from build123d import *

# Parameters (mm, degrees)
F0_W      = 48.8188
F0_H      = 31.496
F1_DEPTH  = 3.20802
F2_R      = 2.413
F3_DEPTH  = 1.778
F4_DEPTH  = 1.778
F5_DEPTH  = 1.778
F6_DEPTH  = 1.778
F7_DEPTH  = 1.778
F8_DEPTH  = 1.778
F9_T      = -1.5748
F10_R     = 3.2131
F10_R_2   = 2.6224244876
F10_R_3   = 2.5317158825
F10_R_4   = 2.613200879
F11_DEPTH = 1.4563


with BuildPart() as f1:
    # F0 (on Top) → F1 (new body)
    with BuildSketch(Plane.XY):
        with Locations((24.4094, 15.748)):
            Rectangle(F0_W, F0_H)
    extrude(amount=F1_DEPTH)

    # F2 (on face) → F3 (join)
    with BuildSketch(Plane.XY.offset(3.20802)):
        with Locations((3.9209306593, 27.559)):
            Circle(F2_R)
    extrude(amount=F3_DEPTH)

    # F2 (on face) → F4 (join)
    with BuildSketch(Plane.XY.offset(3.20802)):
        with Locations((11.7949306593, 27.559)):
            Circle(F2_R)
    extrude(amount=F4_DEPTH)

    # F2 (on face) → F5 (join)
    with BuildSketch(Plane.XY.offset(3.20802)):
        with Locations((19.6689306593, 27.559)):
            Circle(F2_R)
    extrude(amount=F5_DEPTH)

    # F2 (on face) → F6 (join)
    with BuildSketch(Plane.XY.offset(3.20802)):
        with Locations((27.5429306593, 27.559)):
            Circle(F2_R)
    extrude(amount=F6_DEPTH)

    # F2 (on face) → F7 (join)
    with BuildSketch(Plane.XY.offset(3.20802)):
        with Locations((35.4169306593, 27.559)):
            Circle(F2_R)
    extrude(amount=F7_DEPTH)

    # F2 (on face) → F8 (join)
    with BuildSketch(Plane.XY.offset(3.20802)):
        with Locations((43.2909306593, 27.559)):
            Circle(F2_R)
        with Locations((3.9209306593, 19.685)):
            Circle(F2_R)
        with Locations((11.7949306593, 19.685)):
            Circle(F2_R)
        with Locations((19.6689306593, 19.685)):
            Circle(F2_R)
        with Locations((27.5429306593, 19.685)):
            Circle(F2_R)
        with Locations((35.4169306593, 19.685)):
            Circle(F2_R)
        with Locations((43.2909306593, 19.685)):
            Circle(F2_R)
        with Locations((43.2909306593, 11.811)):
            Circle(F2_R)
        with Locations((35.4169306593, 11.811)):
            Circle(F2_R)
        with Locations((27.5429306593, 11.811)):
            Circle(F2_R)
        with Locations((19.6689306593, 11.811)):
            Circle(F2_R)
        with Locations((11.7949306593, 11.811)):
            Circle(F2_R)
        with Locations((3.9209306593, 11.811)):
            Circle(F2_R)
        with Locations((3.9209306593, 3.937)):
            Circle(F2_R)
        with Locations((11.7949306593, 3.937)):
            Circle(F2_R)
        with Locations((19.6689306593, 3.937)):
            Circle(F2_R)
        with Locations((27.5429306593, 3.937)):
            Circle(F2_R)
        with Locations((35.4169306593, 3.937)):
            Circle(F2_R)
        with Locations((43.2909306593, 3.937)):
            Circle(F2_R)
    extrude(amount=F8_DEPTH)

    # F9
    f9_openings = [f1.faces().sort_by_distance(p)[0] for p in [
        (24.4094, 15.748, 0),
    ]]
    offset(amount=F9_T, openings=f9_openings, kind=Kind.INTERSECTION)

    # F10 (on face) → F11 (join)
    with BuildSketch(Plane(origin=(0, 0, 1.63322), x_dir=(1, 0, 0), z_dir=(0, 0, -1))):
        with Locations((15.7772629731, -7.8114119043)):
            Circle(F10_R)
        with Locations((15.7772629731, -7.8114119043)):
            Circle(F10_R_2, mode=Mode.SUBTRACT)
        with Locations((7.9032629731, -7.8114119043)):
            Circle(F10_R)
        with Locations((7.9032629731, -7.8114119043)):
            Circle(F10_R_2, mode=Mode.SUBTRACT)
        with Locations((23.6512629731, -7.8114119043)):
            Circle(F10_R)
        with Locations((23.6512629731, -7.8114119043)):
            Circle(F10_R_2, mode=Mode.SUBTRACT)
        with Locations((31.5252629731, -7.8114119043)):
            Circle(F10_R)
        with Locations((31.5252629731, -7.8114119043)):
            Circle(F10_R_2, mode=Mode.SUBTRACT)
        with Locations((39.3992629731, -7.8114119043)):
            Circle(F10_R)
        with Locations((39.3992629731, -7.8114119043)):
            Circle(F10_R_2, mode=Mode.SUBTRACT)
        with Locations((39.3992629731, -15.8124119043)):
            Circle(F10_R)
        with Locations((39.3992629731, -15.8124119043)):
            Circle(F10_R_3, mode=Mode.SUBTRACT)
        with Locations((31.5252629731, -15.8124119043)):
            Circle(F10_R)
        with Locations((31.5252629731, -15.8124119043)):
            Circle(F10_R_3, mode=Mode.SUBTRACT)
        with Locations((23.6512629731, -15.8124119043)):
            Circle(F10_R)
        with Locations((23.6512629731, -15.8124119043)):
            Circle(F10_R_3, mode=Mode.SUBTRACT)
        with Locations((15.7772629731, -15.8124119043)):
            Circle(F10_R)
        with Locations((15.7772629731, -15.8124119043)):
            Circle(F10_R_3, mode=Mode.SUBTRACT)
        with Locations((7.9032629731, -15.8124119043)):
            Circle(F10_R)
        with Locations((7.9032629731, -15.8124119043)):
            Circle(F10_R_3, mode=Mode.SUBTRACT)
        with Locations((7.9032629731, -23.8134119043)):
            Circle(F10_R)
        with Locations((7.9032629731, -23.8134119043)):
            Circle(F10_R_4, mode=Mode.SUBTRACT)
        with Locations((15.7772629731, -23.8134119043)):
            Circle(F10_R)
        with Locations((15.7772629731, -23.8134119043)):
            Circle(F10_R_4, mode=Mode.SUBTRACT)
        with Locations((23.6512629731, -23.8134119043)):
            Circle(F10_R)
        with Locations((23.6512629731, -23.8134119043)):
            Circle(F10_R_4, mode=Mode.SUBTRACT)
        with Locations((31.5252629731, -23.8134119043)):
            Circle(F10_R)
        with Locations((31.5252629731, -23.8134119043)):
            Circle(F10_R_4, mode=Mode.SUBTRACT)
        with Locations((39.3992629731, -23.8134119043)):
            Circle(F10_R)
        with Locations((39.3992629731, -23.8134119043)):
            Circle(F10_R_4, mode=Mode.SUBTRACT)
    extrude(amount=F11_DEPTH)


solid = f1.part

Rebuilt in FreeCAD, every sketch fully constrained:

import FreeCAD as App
import Part
import Sketcher

V = App.Vector
Q = App.Units.Quantity


def faces_at(feature, points):
    """Names of the faces that lie closest to the given points."""
    faces = feature.Shape.Faces
    near = lambda p: min(range(len(faces)), key=lambda i: faces[i].distToShape(Part.Vertex(*p))[0])
    return sorted({f"Face{near(p) + 1}" for p in points})


def add_polygon(sketch, points):
    """Adds a closed chain of lines whose ends are joined by coincident constraints."""
    first, n = sketch.GeometryCount, len(points)
    for a, b in zip(points, points[1:] + points[:1]):
        sketch.addGeometry(Part.LineSegment(App.Vector(*a, 0), App.Vector(*b, 0)), False)
    for i in range(n):
        sketch.addConstraint(Sketcher.Constraint("Coincident", first + i, 2, first + (i + 1) % n, 1))

doc = App.newDocument("Part")
body = doc.addObject("PartDesign::Body", "Body")

sketch1 = body.newObject("Sketcher::SketchObject", "Sketch")
sketch1.AttachmentSupport = (doc.getObject("XY_Plane"), [""])
sketch1.MapMode = "FlatFace"
add_polygon(sketch1, [(0, 31.496), (0, 0), (48.8188, 0), (48.8188, 31.496)])
sketch1.addConstraint([
    Sketcher.Constraint("Vertical", 0),
    Sketcher.Constraint("Horizontal", 1),
    Sketcher.Constraint("Vertical", 2),
    Sketcher.Constraint("Horizontal", 3),
    Sketcher.Constraint("Coincident", 0, 2, -1, 1),
    Sketcher.Constraint("DistanceY", 0, 2, 0, 1, Q("1.24 in")),
    Sketcher.Constraint("DistanceX", 1, 1, 1, 2, Q("1.922 in")),
])
pad1 = body.newObject("PartDesign::Pad", "Pad")
pad1.Profile = sketch1
pad1.Length = Q("0.1263 in")

sketch2 = body.newObject("Sketcher::SketchObject", "Sketch001")
sketch2.AttachmentSupport = (doc.getObject("XY_Plane"), [""])
sketch2.MapMode = "FlatFace"
sketch2.AttachmentOffset = App.Placement(V(0, 0, 0.1263 * 25.4), App.Rotation())
sketch2.addGeometry(Part.Circle(V(3.920931, 27.559, 0), V(0, 0, 1), 2.413), False)
sketch2.addConstraint([
    Sketcher.Constraint("Diameter", 0, Q("0.19 in")),
    Sketcher.Constraint("DistanceY", -1, 1, 0, 3, Q("1.085 in")),
    Sketcher.Constraint("DistanceX", -1, 1, 0, 3, Q("3.920931 mm")),
])
pad2 = body.newObject("PartDesign::Pad", "Pad001")
pad2.Profile = sketch2
pad2.Length = Q("0.07 in")

sketch3 = body.newObject("Sketcher::SketchObject", "Sketch002")
sketch3.AttachmentSupport = (doc.getObject("XY_Plane"), [""])
sketch3.MapMode = "FlatFace"
sketch3.AttachmentOffset = App.Placement(V(0, 0, 0.1263 * 25.4), App.Rotation())
sketch3.addGeometry(Part.Circle(V(11.794931, 27.559, 0), V(0, 0, 1), 2.413), False)
sketch3.addConstraint([
    Sketcher.Constraint("Diameter", 0, Q("0.19 in")),
    Sketcher.Constraint("DistanceY", -1, 1, 0, 3, Q("1.085 in")),
    Sketcher.Constraint("DistanceX", -1, 1, 0, 3, Q("11.794931 mm")),
])
pad3 = body.newObject("PartDesign::Pad", "Pad002")
pad3.Profile = sketch3
pad3.Length = Q("0.07 in")

sketch4 = body.newObject("Sketcher::SketchObject", "Sketch003")
sketch4.AttachmentSupport = (doc.getObject("XY_Plane"), [""])
sketch4.MapMode = "FlatFace"
sketch4.AttachmentOffset = App.Placement(V(0, 0, 0.1263 * 25.4), App.Rotation())
sketch4.addGeometry(Part.Circle(V(19.668931, 27.559, 0), V(0, 0, 1), 2.413), False)
sketch4.addConstraint([
    Sketcher.Constraint("Diameter", 0, Q("0.19 in")),
    Sketcher.Constraint("DistanceY", -1, 1, 0, 3, Q("1.085 in")),
    Sketcher.Constraint("DistanceX", -1, 1, 0, 3, Q("19.668931 mm")),
])
pad4 = body.newObject("PartDesign::Pad", "Pad003")
pad4.Profile = sketch4
pad4.Length = Q("0.07 in")

sketch5 = body.newObject("Sketcher::SketchObject", "Sketch004")
sketch5.AttachmentSupport = (doc.getObject("XY_Plane"), [""])
sketch5.MapMode = "FlatFace"
sketch5.AttachmentOffset = App.Placement(V(0, 0, 0.1263 * 25.4), App.Rotation())
sketch5.addGeometry(Part.Circle(V(27.542931, 27.559, 0), V(0, 0, 1), 2.413), False)
sketch5.addConstraint([
    Sketcher.Constraint("Diameter", 0, Q("0.19 in")),
    Sketcher.Constraint("DistanceY", -1, 1, 0, 3, Q("1.085 in")),
    Sketcher.Constraint("DistanceX", -1, 1, 0, 3, Q("27.542931 mm")),
])
pad5 = body.newObject("PartDesign::Pad", "Pad004")
pad5.Profile = sketch5
pad5.Length = Q("0.07 in")

sketch6 = body.newObject("Sketcher::SketchObject", "Sketch005")
sketch6.AttachmentSupport = (doc.getObject("XY_Plane"), [""])
sketch6.MapMode = "FlatFace"
sketch6.AttachmentOffset = App.Placement(V(0, 0, 0.1263 * 25.4), App.Rotation())
sketch6.addGeometry(Part.Circle(V(35.416931, 27.559, 0), V(0, 0, 1), 2.413), False)
sketch6.addConstraint([
    Sketcher.Constraint("Diameter", 0, Q("0.19 in")),
    Sketcher.Constraint("DistanceY", -1, 1, 0, 3, Q("1.085 in")),
    Sketcher.Constraint("DistanceX", -1, 1, 0, 3, Q("35.416931 mm")),
])
pad6 = body.newObject("PartDesign::Pad", "Pad005")
pad6.Profile = sketch6
pad6.Length = Q("0.07 in")

sketch7 = body.newObject("Sketcher::SketchObject", "Sketch006")
sketch7.AttachmentSupport = (doc.getObject("XY_Plane"), [""])
sketch7.MapMode = "FlatFace"
sketch7.AttachmentOffset = App.Placement(V(0, 0, 0.1263 * 25.4), App.Rotation())
sketch7.addGeometry([
    Part.Circle(V(43.290931, 27.559, 0), V(0, 0, 1), 2.413),
    Part.Circle(V(3.920931, 19.685, 0), V(0, 0, 1), 2.413),
    Part.Circle(V(11.794931, 19.685, 0), V(0, 0, 1), 2.413),
    Part.Circle(V(19.668931, 19.685, 0), V(0, 0, 1), 2.413),
    Part.Circle(V(27.542931, 19.685, 0), V(0, 0, 1), 2.413),
    Part.Circle(V(35.416931, 19.685, 0), V(0, 0, 1), 2.413),
    Part.Circle(V(43.290931, 19.685, 0), V(0, 0, 1), 2.413),
    Part.Circle(V(43.290931, 11.811, 0), V(0, 0, 1), 2.413),
    Part.Circle(V(35.416931, 11.811, 0), V(0, 0, 1), 2.413),
    Part.Circle(V(27.542931, 11.811, 0), V(0, 0, 1), 2.413),
    Part.Circle(V(19.668931, 11.811, 0), V(0, 0, 1), 2.413),
    Part.Circle(V(11.794931, 11.811, 0), V(0, 0, 1), 2.413),
    Part.Circle(V(3.920931, 11.811, 0), V(0, 0, 1), 2.413),
    Part.Circle(V(3.920931, 3.937, 0), V(0, 0, 1), 2.413),
    Part.Circle(V(11.794931, 3.937, 0), V(0, 0, 1), 2.413),
    Part.Circle(V(19.668931, 3.937, 0), V(0, 0, 1), 2.413),
    Part.Circle(V(27.542931, 3.937, 0), V(0, 0, 1), 2.413),
    Part.Circle(V(35.416931, 3.937, 0), V(0, 0, 1), 2.413),
    Part.Circle(V(43.290931, 3.937, 0), V(0, 0, 1), 2.413),
], False)
sketch7.addConstraint([
    Sketcher.Constraint("Equal", 0, 1),
    Sketcher.Constraint("Equal", 1, 2),
    Sketcher.Constraint("Equal", 2, 3),
    Sketcher.Constraint("Equal", 3, 4),
    Sketcher.Constraint("Equal", 4, 5),
    Sketcher.Constraint("Equal", 5, 6),
    Sketcher.Constraint("Equal", 6, 7),
    Sketcher.Constraint("Equal", 7, 8),
    Sketcher.Constraint("Equal", 8, 9),
    Sketcher.Constraint("Equal", 9, 10),
    Sketcher.Constraint("Equal", 10, 11),
    Sketcher.Constraint("Equal", 11, 12),
    Sketcher.Constraint("Equal", 12, 13),
    Sketcher.Constraint("Equal", 13, 14),
    Sketcher.Constraint("Equal", 14, 15),
    Sketcher.Constraint("Equal", 15, 16),
    Sketcher.Constraint("Equal", 16, 17),
    Sketcher.Constraint("Equal", 17, 18),
    Sketcher.Constraint("Horizontal", 1, 3, 2, 3),
    Sketcher.Constraint("Horizontal", 2, 3, 3, 3),
    Sketcher.Constraint("Horizontal", 3, 3, 4, 3),
    Sketcher.Constraint("Horizontal", 4, 3, 5, 3),
    Sketcher.Constraint("Horizontal", 5, 3, 6, 3),
    Sketcher.Constraint("Horizontal", 7, 3, 8, 3),
    Sketcher.Constraint("Horizontal", 8, 3, 9, 3),
    Sketcher.Constraint("Horizontal", 9, 3, 10, 3),
    Sketcher.Constraint("Horizontal", 10, 3, 11, 3),
    Sketcher.Constraint("Horizontal", 11, 3, 12, 3),
    Sketcher.Constraint("Horizontal", 13, 3, 14, 3),
    Sketcher.Constraint("Horizontal", 14, 3, 15, 3),
    Sketcher.Constraint("Horizontal", 15, 3, 16, 3),
    Sketcher.Constraint("Horizontal", 16, 3, 17, 3),
    Sketcher.Constraint("Horizontal", 17, 3, 18, 3),
    Sketcher.Constraint("Vertical", 0, 3, 6, 3),
    Sketcher.Constraint("Vertical", 6, 3, 7, 3),
    Sketcher.Constraint("Vertical", 5, 3, 8, 3),
    Sketcher.Constraint("Vertical", 4, 3, 9, 3),
    Sketcher.Constraint("Vertical", 3, 3, 10, 3),
    Sketcher.Constraint("Vertical", 2, 3, 11, 3),
    Sketcher.Constraint("Vertical", 1, 3, 12, 3),
    Sketcher.Constraint("Vertical", 12, 3, 13, 3),
    Sketcher.Constraint("Vertical", 11, 3, 14, 3),
    Sketcher.Constraint("Vertical", 10, 3, 15, 3),
    Sketcher.Constraint("Vertical", 9, 3, 16, 3),
    Sketcher.Constraint("Vertical", 8, 3, 17, 3),
    Sketcher.Constraint("Vertical", 7, 3, 18, 3),
    Sketcher.Constraint("Diameter", 0, Q("0.19 in")),
    Sketcher.Constraint("DistanceX", 1, 3, 0, 3, Q("1.55 in")),
    Sketcher.Constraint("DistanceY", 1, 3, 0, 3, Q("0.31 in")),
    Sketcher.Constraint("DistanceX", 1, 3, 2, 3, Q("0.31 in")),
    Sketcher.Constraint("DistanceX", 2, 3, 3, 3, Q("0.31 in")),
    Sketcher.Constraint("DistanceX", 3, 3, 4, 3, Q("0.31 in")),
    Sketcher.Constraint("DistanceX", 4, 3, 5, 3, Q("0.31 in")),
    Sketcher.Constraint("DistanceY", 7, 3, 6, 3, Q("0.31 in")),
    Sketcher.Constraint("DistanceY", 13, 3, 12, 3, Q("0.31 in")),
    Sketcher.Constraint("DistanceY", -1, 1, 0, 3, Q("1.085 in")),
    Sketcher.Constraint("DistanceX", -1, 1, 0, 3, Q("43.290931 mm")),
])
pad7 = body.newObject("PartDesign::Pad", "Pad006")
pad7.Profile = sketch7
pad7.Length = Q("0.07 in")
doc.recompute()

thickness = body.newObject("PartDesign::Thickness", "Thickness")
thickness.Base = (pad7, faces_at(pad7, [(24.409, 15.748, 0)]))
thickness.Value = Q("0.062 in")
thickness.Reversed = True
thickness.Join = "Intersection"

sketch8 = body.newObject("Sketcher::SketchObject", "Sketch007")
sketch8.AttachmentSupport = (doc.getObject("XY_Plane"), [""])
sketch8.MapMode = "FlatFace"
sketch8.AttachmentOffset = App.Placement(V(0, 0, 0.0643 * 25.4), App.Rotation())
sketch8.addGeometry([
    Part.Circle(V(15.777263, 7.811412, 0), V(0, 0, 1), 3.2131),
    Part.Circle(V(15.777263, 7.811412, 0), V(0, 0, 1), 2.622424),
    Part.Circle(V(7.903263, 7.811412, 0), V(0, 0, 1), 3.2131),
    Part.Circle(V(7.903263, 7.811412, 0), V(0, 0, 1), 2.622424),
    Part.Circle(V(23.651263, 7.811412, 0), V(0, 0, 1), 3.2131),
    Part.Circle(V(23.651263, 7.811412, 0), V(0, 0, 1), 2.622424),
    Part.Circle(V(31.525263, 7.811412, 0), V(0, 0, 1), 3.2131),
    Part.Circle(V(31.525263, 7.811412, 0), V(0, 0, 1), 2.622424),
    Part.Circle(V(39.399263, 7.811412, 0), V(0, 0, 1), 3.2131),
    Part.Circle(V(39.399263, 7.811412, 0), V(0, 0, 1), 2.622424),
    Part.Circle(V(39.399263, 15.812412, 0), V(0, 0, 1), 3.2131),
    Part.Circle(V(39.399263, 15.812412, 0), V(0, 0, 1), 2.531716),
    Part.Circle(V(31.525263, 15.812412, 0), V(0, 0, 1), 3.2131),
    Part.Circle(V(31.525263, 15.812412, 0), V(0, 0, 1), 2.531716),
    Part.Circle(V(23.651263, 15.812412, 0), V(0, 0, 1), 3.2131),
    Part.Circle(V(23.651263, 15.812412, 0), V(0, 0, 1), 2.531716),
    Part.Circle(V(15.777263, 15.812412, 0), V(0, 0, 1), 3.2131),
    Part.Circle(V(15.777263, 15.812412, 0), V(0, 0, 1), 2.531716),
    Part.Circle(V(7.903263, 15.812412, 0), V(0, 0, 1), 3.2131),
    Part.Circle(V(7.903263, 15.812412, 0), V(0, 0, 1), 2.531716),
    Part.Circle(V(7.903263, 23.813412, 0), V(0, 0, 1), 3.2131),
    Part.Circle(V(7.903263, 23.813412, 0), V(0, 0, 1), 2.613201),
    Part.Circle(V(15.777263, 23.813412, 0), V(0, 0, 1), 3.2131),
    Part.Circle(V(15.777263, 23.813412, 0), V(0, 0, 1), 2.613201),
    Part.Circle(V(23.651263, 23.813412, 0), V(0, 0, 1), 3.2131),
    Part.Circle(V(23.651263, 23.813412, 0), V(0, 0, 1), 2.613201),
    Part.Circle(V(31.525263, 23.813412, 0), V(0, 0, 1), 3.2131),
    Part.Circle(V(31.525263, 23.813412, 0), V(0, 0, 1), 2.613201),
    Part.Circle(V(39.399263, 23.813412, 0), V(0, 0, 1), 3.2131),
    Part.Circle(V(39.399263, 23.813412, 0), V(0, 0, 1), 2.613201),
], False)
sketch8.addConstraint([
    Sketcher.Constraint("Coincident", 1, 3, 0, 3),
    Sketcher.Constraint("Coincident", 3, 3, 2, 3),
    Sketcher.Constraint("Coincident", 5, 3, 4, 3),
    Sketcher.Constraint("Coincident", 7, 3, 6, 3),
    Sketcher.Constraint("Coincident", 9, 3, 8, 3),
    Sketcher.Constraint("Coincident", 11, 3, 10, 3),
    Sketcher.Constraint("Coincident", 13, 3, 12, 3),
    Sketcher.Constraint("Coincident", 15, 3, 14, 3),
    Sketcher.Constraint("Coincident", 17, 3, 16, 3),
    Sketcher.Constraint("Coincident", 19, 3, 18, 3),
    Sketcher.Constraint("Coincident", 21, 3, 20, 3),
    Sketcher.Constraint("Coincident", 23, 3, 22, 3),
    Sketcher.Constraint("Coincident", 25, 3, 24, 3),
    Sketcher.Constraint("Coincident", 27, 3, 26, 3),
    Sketcher.Constraint("Coincident", 29, 3, 28, 3),
    Sketcher.Constraint("Equal", 0, 2),
    Sketcher.Constraint("Equal", 1, 3),
    Sketcher.Constraint("Equal", 2, 4),
    Sketcher.Constraint("Equal", 3, 5),
    Sketcher.Constraint("Equal", 4, 6),
    Sketcher.Constraint("Equal", 5, 7),
    Sketcher.Constraint("Equal", 6, 8),
    Sketcher.Constraint("Equal", 7, 9),
    Sketcher.Constraint("Equal", 8, 10),
    Sketcher.Constraint("Equal", 10, 12),
    Sketcher.Constraint("Equal", 11, 13),
    Sketcher.Constraint("Equal", 12, 14),
    Sketcher.Constraint("Equal", 13, 15),
    Sketcher.Constraint("Equal", 14, 16),
    Sketcher.Constraint("Equal", 15, 17),
    Sketcher.Constraint("Equal", 16, 18),
    Sketcher.Constraint("Equal", 17, 19),
    Sketcher.Constraint("Equal", 18, 20),
    Sketcher.Constraint("Equal", 20, 22),
    Sketcher.Constraint("Equal", 21, 23),
    Sketcher.Constraint("Equal", 22, 24),
    Sketcher.Constraint("Equal", 23, 25),
    Sketcher.Constraint("Equal", 24, 26),
    Sketcher.Constraint("Equal", 25, 27),
    Sketcher.Constraint("Equal", 26, 28),
    Sketcher.Constraint("Equal", 27, 29),
    Sketcher.Constraint("Horizontal", 1, 3, 2, 3),
    Sketcher.Constraint("Horizontal", 3, 3, 4, 3),
    Sketcher.Constraint("Horizontal", 5, 3, 6, 3),
    Sketcher.Constraint("Horizontal", 7, 3, 8, 3),
    Sketcher.Constraint("Horizontal", 11, 3, 12, 3),
    Sketcher.Constraint("Horizontal", 13, 3, 14, 3),
    Sketcher.Constraint("Horizontal", 15, 3, 16, 3),
    Sketcher.Constraint("Horizontal", 17, 3, 18, 3),
    Sketcher.Constraint("Horizontal", 21, 3, 22, 3),
    Sketcher.Constraint("Horizontal", 23, 3, 24, 3),
    Sketcher.Constraint("Horizontal", 25, 3, 26, 3),
    Sketcher.Constraint("Horizontal", 27, 3, 28, 3),
    Sketcher.Constraint("Vertical", 9, 3, 10, 3),
    Sketcher.Constraint("Vertical", 7, 3, 12, 3),
    Sketcher.Constraint("Vertical", 5, 3, 14, 3),
    Sketcher.Constraint("Vertical", 1, 3, 16, 3),
    Sketcher.Constraint("Vertical", 3, 3, 18, 3),
    Sketcher.Constraint("Vertical", 19, 3, 20, 3),
    Sketcher.Constraint("Vertical", 17, 3, 22, 3),
    Sketcher.Constraint("Vertical", 15, 3, 24, 3),
    Sketcher.Constraint("Vertical", 13, 3, 26, 3),
    Sketcher.Constraint("Vertical", 11, 3, 28, 3),
    Sketcher.Constraint("Diameter", 0, Q("0.253 in")),
    Sketcher.Constraint("Diameter", 21, Q("5.226402 mm")),
    Sketcher.Constraint("DistanceX", 2, 3, 0, 3, Q("0.31 in")),
    Sketcher.Constraint("DistanceX", 0, 3, 4, 3, Q("0.31 in")),
    Sketcher.Constraint("DistanceX", 4, 3, 6, 3, Q("0.31 in")),
    Sketcher.Constraint("DistanceX", 6, 3, 8, 3, Q("0.31 in")),
    Sketcher.Constraint("DistanceY", 2, 3, 20, 3, Q("0.63 in")),
    Sketcher.Constraint("Diameter", 1, Q("5.244849 mm")),
    Sketcher.Constraint("Diameter", 11, Q("5.063432 mm")),
    Sketcher.Constraint("DistanceY", 8, 3, 10, 3, Q("0.315 in")),
    Sketcher.Constraint("DistanceY", -1, 1, 0, 3, Q("7.811412 mm")),
    Sketcher.Constraint("DistanceX", -1, 1, 0, 3, Q("15.777263 mm")),
])
pad8 = body.newObject("PartDesign::Pad", "Pad007")
pad8.Profile = sketch8
pad8.Length = 1.4563
pad8.Reversed = True

doc.recompute()
